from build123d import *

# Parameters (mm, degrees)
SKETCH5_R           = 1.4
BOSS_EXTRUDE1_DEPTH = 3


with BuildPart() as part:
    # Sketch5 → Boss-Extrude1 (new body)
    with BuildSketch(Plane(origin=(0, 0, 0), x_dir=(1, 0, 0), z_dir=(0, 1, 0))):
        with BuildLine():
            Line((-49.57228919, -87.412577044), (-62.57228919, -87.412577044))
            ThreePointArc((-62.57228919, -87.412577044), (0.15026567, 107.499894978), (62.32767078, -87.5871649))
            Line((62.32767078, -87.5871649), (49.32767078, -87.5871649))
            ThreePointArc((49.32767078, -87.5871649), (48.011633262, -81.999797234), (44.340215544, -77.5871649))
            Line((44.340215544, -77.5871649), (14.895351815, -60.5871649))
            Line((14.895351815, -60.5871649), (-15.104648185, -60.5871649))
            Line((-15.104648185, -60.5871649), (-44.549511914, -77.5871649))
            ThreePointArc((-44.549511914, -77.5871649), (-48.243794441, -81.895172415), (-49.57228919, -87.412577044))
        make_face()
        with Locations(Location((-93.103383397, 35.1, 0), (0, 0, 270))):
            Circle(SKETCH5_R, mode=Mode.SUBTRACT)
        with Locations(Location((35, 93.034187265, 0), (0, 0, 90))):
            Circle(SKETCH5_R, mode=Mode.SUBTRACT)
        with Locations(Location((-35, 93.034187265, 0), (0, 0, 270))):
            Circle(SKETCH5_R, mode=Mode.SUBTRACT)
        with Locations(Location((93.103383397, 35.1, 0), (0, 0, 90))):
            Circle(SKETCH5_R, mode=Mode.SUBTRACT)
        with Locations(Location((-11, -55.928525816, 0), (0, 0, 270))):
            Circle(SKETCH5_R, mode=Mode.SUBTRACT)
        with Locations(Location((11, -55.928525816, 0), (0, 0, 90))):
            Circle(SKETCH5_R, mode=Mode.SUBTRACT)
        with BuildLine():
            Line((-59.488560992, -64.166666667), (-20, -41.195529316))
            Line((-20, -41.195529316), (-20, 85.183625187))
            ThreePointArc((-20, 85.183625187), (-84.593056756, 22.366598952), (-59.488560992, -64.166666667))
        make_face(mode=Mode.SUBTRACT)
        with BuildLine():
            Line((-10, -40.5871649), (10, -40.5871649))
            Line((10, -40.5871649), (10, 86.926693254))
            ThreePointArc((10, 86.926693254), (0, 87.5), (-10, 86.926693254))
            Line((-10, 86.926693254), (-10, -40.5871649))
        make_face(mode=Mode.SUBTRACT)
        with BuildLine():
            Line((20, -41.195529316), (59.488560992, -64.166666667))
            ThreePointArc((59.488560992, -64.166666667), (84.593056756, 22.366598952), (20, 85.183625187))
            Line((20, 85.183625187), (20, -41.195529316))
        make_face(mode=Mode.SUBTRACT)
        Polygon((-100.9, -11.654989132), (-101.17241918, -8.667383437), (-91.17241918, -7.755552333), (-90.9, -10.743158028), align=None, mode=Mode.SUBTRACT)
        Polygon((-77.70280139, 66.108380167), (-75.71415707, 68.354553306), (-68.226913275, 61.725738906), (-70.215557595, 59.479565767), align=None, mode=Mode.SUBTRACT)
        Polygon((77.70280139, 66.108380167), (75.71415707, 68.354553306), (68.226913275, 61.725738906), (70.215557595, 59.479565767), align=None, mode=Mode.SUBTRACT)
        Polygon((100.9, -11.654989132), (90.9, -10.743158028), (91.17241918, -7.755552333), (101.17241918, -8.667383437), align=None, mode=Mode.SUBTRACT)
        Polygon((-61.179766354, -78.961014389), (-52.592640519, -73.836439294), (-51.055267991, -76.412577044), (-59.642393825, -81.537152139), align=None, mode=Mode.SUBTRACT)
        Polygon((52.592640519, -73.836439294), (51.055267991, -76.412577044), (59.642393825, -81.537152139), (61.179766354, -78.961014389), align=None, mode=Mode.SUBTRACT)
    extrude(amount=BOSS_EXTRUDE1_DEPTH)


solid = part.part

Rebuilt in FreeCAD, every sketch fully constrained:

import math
import FreeCAD as App
import Part
import Sketcher
Q = App.Units.Quantity

doc = App.newDocument("Part")
body = doc.addObject("PartDesign::Body", "Body")

# Sketch on XZ plane
sketch1 = body.newObject("Sketcher::SketchObject", "Sketch")
sketch1.AttachmentSupport = (doc.getObject("XZ_Plane"), [""])
sketch1.MapMode = "FlatFace"
sketch1.addGeometry([
    Part.LineSegment(App.Vector(-62.6, 87.4, 0), App.Vector(-49.6, 87.4, 0)),  # 0
    Part.ArcOfCircle(Part.Circle(App.Vector(-37.5, 87.4, 0), App.Vector(0, 0, 1), 12.1), math.radians(-180), math.radians(-126)),  # 1
    Part.LineSegment(App.Vector(-44.5, 77.6, 0), App.Vector(-15.1, 60.6, 0)),  # 2
    Part.LineSegment(App.Vector(-15.1, 60.6, 0), App.Vector(14.9, 60.6, 0)),  # 3
    Part.LineSegment(App.Vector(14.9, 60.6, 0), App.Vector(44.3, 77.6, 0)),  # 4
    Part.ArcOfCircle(Part.Circle(App.Vector(36.8, 87.6, 0), App.Vector(0, 0, 1), 12.5), math.radians(-53), math.radians(0)),  # 5
    Part.LineSegment(App.Vector(49.3, 87.6, 0), App.Vector(62.3, 87.6, 0)),  # 6
    Part.ArcOfCircle(Part.Circle(App.Vector(0, 0, 0), App.Vector(0, 0, 1), 107.5), math.radians(126), math.radians(415)),  # 7
    Part.LineSegment(App.Vector(52.6, 73.8, 0), App.Vector(61.2, 79, 0)),  # 8
    Part.LineSegment(App.Vector(61.2, 79, 0), App.Vector(59.6, 81.5, 0)),  # 9
    Part.LineSegment(App.Vector(59.6, 81.5, 0), App.Vector(51.1, 76.4, 0)),  # 10
    Part.LineSegment(App.Vector(51.1, 76.4, 0), App.Vector(52.6, 73.8, 0)),  # 11
    Part.Circle(App.Vector(11, 55.9, 0), App.Vector(0, 0, 1), 1.4),  # 12
    Part.LineSegment(App.Vector(100.9, 11.7, 0), App.Vector(90.9, 10.7, 0)),  # 13
    Part.LineSegment(App.Vector(90.9, 10.7, 0), App.Vector(91.2, 7.8, 0)),  # 14
    Part.LineSegment(App.Vector(91.2, 7.8, 0), App.Vector(101.2, 8.7, 0)),  # 15
    Part.LineSegment(App.Vector(101.2, 8.7, 0), App.Vector(100.9, 11.7, 0)),  # 16
    Part.Circle(App.Vector(-11, 55.9, 0), App.Vector(0, 0, 1), 1.4),  # 17
    Part.LineSegment(App.Vector(-61.2, 79, 0), App.Vector(-52.6, 73.8, 0)),  # 18
    Part.LineSegment(App.Vector(-52.6, 73.8, 0), App.Vector(-51.1, 76.4, 0)),  # 19
    Part.LineSegment(App.Vector(-51.1, 76.4, 0), App.Vector(-59.6, 81.5, 0)),  # 20
    Part.LineSegment(App.Vector(-59.6, 81.5, 0), App.Vector(-61.2, 79, 0)),  # 21
    Part.LineSegment(App.Vector(-100.9, 11.7, 0), App.Vector(-101.2, 8.7, 0)),  # 22
    Part.LineSegment(App.Vector(-101.2, 8.7, 0), App.Vector(-91.2, 7.8, 0)),  # 23
    Part.LineSegment(App.Vector(-91.2, 7.8, 0), App.Vector(-90.9, 10.7, 0)),  # 24
    Part.LineSegment(App.Vector(-90.9, 10.7, 0), App.Vector(-100.9, 11.7, 0)),  # 25
    Part.LineSegment(App.Vector(20, 41.2, 0), App.Vector(20, -85.2, 0)),  # 26
    Part.ArcOfCircle(Part.Circle(App.Vector(0, 0, 0), App.Vector(0, 0, 1), 87.5), math.radians(-77), math.radians(47)),  # 27
    Part.LineSegment(App.Vector(59.5, 64.2, 0), App.Vector(20, 41.2, 0)),  # 28
    Part.Circle(App.Vector(93.1, -35.1, 0), App.Vector(0, 0, 1), 1.4),  # 29
    Part.LineSegment(App.Vector(77.7, -66.1, 0), App.Vector(70.2, -59.5, 0)),  # 30
    Part.LineSegment(App.Vector(70.2, -59.5, 0), App.Vector(68.2, -61.7, 0)),  # 31
    Part.LineSegment(App.Vector(68.2, -61.7, 0), App.Vector(75.7, -68.4, 0)),  # 32
    Part.LineSegment(App.Vector(75.7, -68.4, 0), App.Vector(77.7, -66.1, 0)),  # 33
    Part.Circle(App.Vector(35, -93, 0), App.Vector(0, 0, 1), 1.4),  # 34
    Part.LineSegment(App.Vector(-10, 40.6, 0), App.Vector(-10, -86.9, 0)),  # 35
    Part.ArcOfCircle(Part.Circle(App.Vector(0, 0, 0), App.Vector(0, 0, 1), 87.5), math.radians(-96.56), math.radians(-83.44)),  # 36
    Part.LineSegment(App.Vector(10, -86.9, 0), App.Vector(10, 40.6, 0)),  # 37
    Part.LineSegment(App.Vector(10, 40.6, 0), App.Vector(-10, 40.6, 0)),  # 38
    Part.ArcOfCircle(Part.Circle(App.Vector(0, 0, 0), App.Vector(0, 0, 1), 87.5), math.radians(133), math.radians(257)),  # 39
    Part.LineSegment(App.Vector(-20, -85.2, 0), App.Vector(-20, 41.2, 0)),  # 40
    Part.LineSegment(App.Vector(-20, 41.2, 0), App.Vector(-59.5, 64.2, 0)),  # 41
    Part.Circle(App.Vector(-93.1, -35.1, 0), App.Vector(0, 0, 1), 1.4),  # 42
    Part.Circle(App.Vector(-35, -93, 0), App.Vector(0, 0, 1), 1.4),  # 43
    Part.LineSegment(App.Vector(-77.7, -66.1, 0), App.Vector(-75.7, -68.4, 0)),  # 44
    Part.LineSegment(App.Vector(-75.7, -68.4, 0), App.Vector(-68.2, -61.7, 0)),  # 45
    Part.LineSegment(App.Vector(-68.2, -61.7, 0), App.Vector(-70.2, -59.5, 0)),  # 46
    Part.LineSegment(App.Vector(-70.2, -59.5, 0), App.Vector(-77.7, -66.1, 0)),  # 47
], False)
sketch1.addConstraint([
    Sketcher.Constraint("Coincident", 0, 2, 1, 1),
    Sketcher.Constraint("Coincident", 1, 2, 2, 1),
    Sketcher.Constraint("Coincident", 2, 2, 3, 1),
    Sketcher.Constraint("Coincident", 3, 2, 4, 1),
    Sketcher.Constraint("Coincident", 4, 2, 5, 1),
    Sketcher.Constraint("Coincident", 5, 2, 6, 1),
    Sketcher.Constraint("Coincident", 6, 2, 7, 2),
    Sketcher.Constraint("Coincident", 7, 1, 0, 1),
    Sketcher.Constraint("Coincident", 8, 2, 9, 1),
    Sketcher.Constraint("Coincident", 9, 2, 10, 1),
    Sketcher.Constraint("Coincident", 10, 2, 11, 1),
    Sketcher.Constraint("Coincident", 11, 2, 8, 1),
    Sketcher.Constraint("Coincident", 13, 2, 14, 1),
    Sketcher.Constraint("Coincident", 14, 2, 15, 1),
    Sketcher.Constraint("Coincident", 15, 2, 16, 1),
    Sketcher.Constraint("Coincident", 16, 2, 13, 1),
    Sketcher.Constraint("Coincident", 18, 2, 19, 1),
    Sketcher.Constraint("Coincident", 19, 2, 20, 1),
    Sketcher.Constraint("Coincident", 20, 2, 21, 1),
    Sketcher.Constraint("Coincident", 21, 2, 18, 1),
    Sketcher.Constraint("Coincident", 22, 2, 23, 1),
    Sketcher.Constraint("Coincident", 23, 2, 24, 1),
    Sketcher.Constraint("Coincident", 24, 2, 25, 1),
    Sketcher.Constraint("Coincident", 25, 2, 22, 1),
    Sketcher.Constraint("Coincident", 26, 2, 27, 1),
    Sketcher.Constraint("Coincident", 27, 2, 28, 1),
    Sketcher.Constraint("Coincident", 28, 2, 26, 1),
    Sketcher.Constraint("Coincident", 30, 2, 31, 1),
    Sketcher.Constraint("Coincident", 31, 2, 32, 1),
    Sketcher.Constraint("Coincident", 32, 2, 33, 1),
    Sketcher.Constraint("Coincident", 33, 2, 30, 1),
    Sketcher.Constraint("Coincident", 35, 2, 36, 1),
    Sketcher.Constraint("Coincident", 36, 2, 37, 1),
    Sketcher.Constraint("Coincident", 37, 2, 38, 1),
    Sketcher.Constraint("Coincident", 38, 2, 35, 1),
    Sketcher.Constraint("Coincident", 39, 2, 40, 1),
    Sketcher.Constraint("Coincident", 40, 2, 41, 1),
    Sketcher.Constraint("Coincident", 41, 2, 39, 1),
    Sketcher.Constraint("Coincident", 44, 2, 45, 1),
    Sketcher.Constraint("Coincident", 45, 2, 46, 1),
    Sketcher.Constraint("Coincident", 46, 2, 47, 1),
    Sketcher.Constraint("Coincident", 47, 2, 44, 1),
    Sketcher.Constraint("Horizontal", 0),
    Sketcher.Constraint("Horizontal", 3),
    Sketcher.Constraint("Horizontal", 6),
    Sketcher.Constraint("Vertical", 26),
    Sketcher.Constraint("Vertical", 35),
    Sketcher.Constraint("Vertical", 37),
    Sketcher.Constraint("Horizontal", 38),
    Sketcher.Constraint("Vertical", 40),
    Sketcher.Constraint("Coincident", 7, 3, -1, 1),
    Sketcher.Constraint("Coincident", 27, 3, -1, 1),
    Sketcher.Constraint("Coincident", 36, 3, -1, 1),
    Sketcher.Constraint("Coincident", 39, 3, -1, 1),
    Sketcher.Constraint("Equal", 12, 17),
    Sketcher.Constraint("Equal", 17, 29),
    Sketcher.Constraint("Equal", 29, 34),
    Sketcher.Constraint("Equal", 27, 36),
    Sketcher.Constraint("Equal", 36, 39),
    Sketcher.Constraint("Equal", 34, 42),
    Sketcher.Constraint("Equal", 42, 43),
    Sketcher.Constraint("Symmetric", 12, 3, 17, 3, -2),
    Sketcher.Constraint("Symmetric", 29, 3, 42, 3, -2),
    Sketcher.Constraint("Symmetric", 34, 3, 43, 3, -2),
    Sketcher.Constraint("Symmetric", 11, 2, 18, 2, -2),
    Sketcher.Constraint("Symmetric", 10, 2, 19, 2, -2),
    Sketcher.Constraint("Symmetric", 9, 2, 20, 2, -2),
    Sketcher.Constraint("Symmetric", 8, 2, 21, 2, -2),
    Sketcher.Constraint("Symmetric", 15, 2, 22, 2, -2),
    Sketcher.Constraint("Symmetric", 14, 2, 23, 2, -2),
    Sketcher.Constraint("Symmetric", 13, 2, 24, 2, -2),
    Sketcher.Constraint("Symmetric", 16, 2, 25, 2, -2),
    Sketcher.Constraint("Symmetric", 28, 2, 40, 2, -2),
    Sketcher.Constraint("Symmetric", 32, 2, 44, 2, -2),
    Sketcher.Constraint("Symmetric", 31, 2, 45, 2, -2),
    Sketcher.Constraint("Symmetric", 30, 2, 46, 2, -2),
    Sketcher.Constraint("Symmetric", 33, 2, 47, 2, -2),
    Sketcher.Constraint("Perpendicular", 8, 9),
    Sketcher.Constraint("Perpendicular", 9, 10),
    Sketcher.Constraint("Perpendicular", 10, 11),
    Sketcher.Constraint("Perpendicular", 13, 14),
    Sketcher.Constraint("Perpendicular", 14, 15),
    Sketcher.Constraint("Perpendicular", 15, 16),
    Sketcher.Constraint("Perpendicular", 30, 31),
    Sketcher.Constraint("Perpendicular", 31, 32),
    Sketcher.Constraint("Perpendicular", 32, 33),
    Sketcher.Constraint("Horizontal", 1, 3, 0, 2),
    Sketcher.Constraint("Horizontal", 1, 2, 4, 2),
    Sketcher.Constraint("Horizontal", 35, 2, 36, 2),
    Sketcher.Constraint("Horizontal", 27, 2, 41, 2),
    Sketcher.Constraint("Equal", 0, 6),
    Sketcher.Constraint("Equal", 2, 4),
    Sketcher.Constraint("Equal", 11, 14),
    Sketcher.Constraint("Equal", 20, 30),
    Sketcher.Constraint("Equal", 24, 31),
    Sketcher.Constraint("Diameter", 12, 2.8),
    Sketcher.Constraint("Radius", 7, 107.5),
    Sketcher.Constraint("Radius", 27, 87.5),
    Sketcher.Constraint("DistanceX", 0, 1, 0, 2, 13.0),
    Sketcher.Constraint("DistanceX", 3, 1, 3, 2, 30.0),
    Sketcher.Constraint("DistanceX", 38, 2, 38, 1, 20.0),
    Sketcher.Constraint("Angle", 2, Q("-30 deg")),
    Sketcher.Constraint("Distance", 2, 34.0),
    Sketcher.Constraint("Distance", 8, 10.0),
    Sketcher.Constraint("Distance", 9, 3.0),
    Sketcher.Constraint("DistanceX", -1, 1, 12, 3, 11.0),
    Sketcher.Constraint("DistanceX", -1, 1, 34, 3, 35.0),
    Sketcher.Constraint("DistanceX", -1, 1, 26, 2, 20.0),
    Sketcher.Constraint("DistanceY", 1, 2, 5, 3, 10.0),
    Sketcher.Constraint("DistanceY", 4, 2, 5, 2, 10.0),
    Sketcher.Constraint("DistanceX", 14, 2, 15, 2, 10.0),
    Sketcher.Constraint("DistanceY", 19, 2, 0, 2, 11.0),
    Sketcher.Constraint("DistanceY", 37, 2, 3, 2, 20.0),
    Sketcher.Constraint("DistanceY", 29, 3, -1, 1, 35.1),
    Sketcher.Constraint("DistanceX", -1, 1, 13, 2, 90.9),
    Sketcher.Constraint("Angle", 13, Q("-174.79 deg")),
    Sketcher.Constraint("Angle", 30, Q("138.48 deg")),
    Sketcher.Constraint("Radius", 5, 12.51888),
    Sketcher.Constraint("Radius", 1, 12.121483),
    Sketcher.Constraint("DistanceY", 35, 2, 35, 1, 127.513858),
    Sketcher.Constraint("DistanceX", -1, 1, 33, 2, 77.702801),
    Sketcher.Constraint("DistanceX", 10, 2, 8, 2, 10.124498),
    Sketcher.Constraint("DistanceY", 27, 2, 4, 2, 13.420498),
    Sketcher.Constraint("Distance", 28, 45.68391),
    Sketcher.Constraint("DistanceX", -1, 1, 11, 2, 52.592641),
    Sketcher.Constraint("DistanceY", -1, 1, 13, 2, 10.743158),
    Sketcher.Constraint("DistanceY", 31, 2, -1, 1, 61.725739),
    Sketcher.Constraint("DistanceY", 12, 3, 5, 3, 31.658639),
    Sketcher.Constraint("DistanceY", 34, 3, 30, 2, 33.554621),
    Sketcher.Constraint("DistanceX", 31, 2, 29, 3, 24.87647),
])
pad1 = body.newObject("PartDesign::Pad", "Pad")
pad1.Profile = sketch1
pad1.Length = 3
pad1.Reversed = True

doc.recompute()
